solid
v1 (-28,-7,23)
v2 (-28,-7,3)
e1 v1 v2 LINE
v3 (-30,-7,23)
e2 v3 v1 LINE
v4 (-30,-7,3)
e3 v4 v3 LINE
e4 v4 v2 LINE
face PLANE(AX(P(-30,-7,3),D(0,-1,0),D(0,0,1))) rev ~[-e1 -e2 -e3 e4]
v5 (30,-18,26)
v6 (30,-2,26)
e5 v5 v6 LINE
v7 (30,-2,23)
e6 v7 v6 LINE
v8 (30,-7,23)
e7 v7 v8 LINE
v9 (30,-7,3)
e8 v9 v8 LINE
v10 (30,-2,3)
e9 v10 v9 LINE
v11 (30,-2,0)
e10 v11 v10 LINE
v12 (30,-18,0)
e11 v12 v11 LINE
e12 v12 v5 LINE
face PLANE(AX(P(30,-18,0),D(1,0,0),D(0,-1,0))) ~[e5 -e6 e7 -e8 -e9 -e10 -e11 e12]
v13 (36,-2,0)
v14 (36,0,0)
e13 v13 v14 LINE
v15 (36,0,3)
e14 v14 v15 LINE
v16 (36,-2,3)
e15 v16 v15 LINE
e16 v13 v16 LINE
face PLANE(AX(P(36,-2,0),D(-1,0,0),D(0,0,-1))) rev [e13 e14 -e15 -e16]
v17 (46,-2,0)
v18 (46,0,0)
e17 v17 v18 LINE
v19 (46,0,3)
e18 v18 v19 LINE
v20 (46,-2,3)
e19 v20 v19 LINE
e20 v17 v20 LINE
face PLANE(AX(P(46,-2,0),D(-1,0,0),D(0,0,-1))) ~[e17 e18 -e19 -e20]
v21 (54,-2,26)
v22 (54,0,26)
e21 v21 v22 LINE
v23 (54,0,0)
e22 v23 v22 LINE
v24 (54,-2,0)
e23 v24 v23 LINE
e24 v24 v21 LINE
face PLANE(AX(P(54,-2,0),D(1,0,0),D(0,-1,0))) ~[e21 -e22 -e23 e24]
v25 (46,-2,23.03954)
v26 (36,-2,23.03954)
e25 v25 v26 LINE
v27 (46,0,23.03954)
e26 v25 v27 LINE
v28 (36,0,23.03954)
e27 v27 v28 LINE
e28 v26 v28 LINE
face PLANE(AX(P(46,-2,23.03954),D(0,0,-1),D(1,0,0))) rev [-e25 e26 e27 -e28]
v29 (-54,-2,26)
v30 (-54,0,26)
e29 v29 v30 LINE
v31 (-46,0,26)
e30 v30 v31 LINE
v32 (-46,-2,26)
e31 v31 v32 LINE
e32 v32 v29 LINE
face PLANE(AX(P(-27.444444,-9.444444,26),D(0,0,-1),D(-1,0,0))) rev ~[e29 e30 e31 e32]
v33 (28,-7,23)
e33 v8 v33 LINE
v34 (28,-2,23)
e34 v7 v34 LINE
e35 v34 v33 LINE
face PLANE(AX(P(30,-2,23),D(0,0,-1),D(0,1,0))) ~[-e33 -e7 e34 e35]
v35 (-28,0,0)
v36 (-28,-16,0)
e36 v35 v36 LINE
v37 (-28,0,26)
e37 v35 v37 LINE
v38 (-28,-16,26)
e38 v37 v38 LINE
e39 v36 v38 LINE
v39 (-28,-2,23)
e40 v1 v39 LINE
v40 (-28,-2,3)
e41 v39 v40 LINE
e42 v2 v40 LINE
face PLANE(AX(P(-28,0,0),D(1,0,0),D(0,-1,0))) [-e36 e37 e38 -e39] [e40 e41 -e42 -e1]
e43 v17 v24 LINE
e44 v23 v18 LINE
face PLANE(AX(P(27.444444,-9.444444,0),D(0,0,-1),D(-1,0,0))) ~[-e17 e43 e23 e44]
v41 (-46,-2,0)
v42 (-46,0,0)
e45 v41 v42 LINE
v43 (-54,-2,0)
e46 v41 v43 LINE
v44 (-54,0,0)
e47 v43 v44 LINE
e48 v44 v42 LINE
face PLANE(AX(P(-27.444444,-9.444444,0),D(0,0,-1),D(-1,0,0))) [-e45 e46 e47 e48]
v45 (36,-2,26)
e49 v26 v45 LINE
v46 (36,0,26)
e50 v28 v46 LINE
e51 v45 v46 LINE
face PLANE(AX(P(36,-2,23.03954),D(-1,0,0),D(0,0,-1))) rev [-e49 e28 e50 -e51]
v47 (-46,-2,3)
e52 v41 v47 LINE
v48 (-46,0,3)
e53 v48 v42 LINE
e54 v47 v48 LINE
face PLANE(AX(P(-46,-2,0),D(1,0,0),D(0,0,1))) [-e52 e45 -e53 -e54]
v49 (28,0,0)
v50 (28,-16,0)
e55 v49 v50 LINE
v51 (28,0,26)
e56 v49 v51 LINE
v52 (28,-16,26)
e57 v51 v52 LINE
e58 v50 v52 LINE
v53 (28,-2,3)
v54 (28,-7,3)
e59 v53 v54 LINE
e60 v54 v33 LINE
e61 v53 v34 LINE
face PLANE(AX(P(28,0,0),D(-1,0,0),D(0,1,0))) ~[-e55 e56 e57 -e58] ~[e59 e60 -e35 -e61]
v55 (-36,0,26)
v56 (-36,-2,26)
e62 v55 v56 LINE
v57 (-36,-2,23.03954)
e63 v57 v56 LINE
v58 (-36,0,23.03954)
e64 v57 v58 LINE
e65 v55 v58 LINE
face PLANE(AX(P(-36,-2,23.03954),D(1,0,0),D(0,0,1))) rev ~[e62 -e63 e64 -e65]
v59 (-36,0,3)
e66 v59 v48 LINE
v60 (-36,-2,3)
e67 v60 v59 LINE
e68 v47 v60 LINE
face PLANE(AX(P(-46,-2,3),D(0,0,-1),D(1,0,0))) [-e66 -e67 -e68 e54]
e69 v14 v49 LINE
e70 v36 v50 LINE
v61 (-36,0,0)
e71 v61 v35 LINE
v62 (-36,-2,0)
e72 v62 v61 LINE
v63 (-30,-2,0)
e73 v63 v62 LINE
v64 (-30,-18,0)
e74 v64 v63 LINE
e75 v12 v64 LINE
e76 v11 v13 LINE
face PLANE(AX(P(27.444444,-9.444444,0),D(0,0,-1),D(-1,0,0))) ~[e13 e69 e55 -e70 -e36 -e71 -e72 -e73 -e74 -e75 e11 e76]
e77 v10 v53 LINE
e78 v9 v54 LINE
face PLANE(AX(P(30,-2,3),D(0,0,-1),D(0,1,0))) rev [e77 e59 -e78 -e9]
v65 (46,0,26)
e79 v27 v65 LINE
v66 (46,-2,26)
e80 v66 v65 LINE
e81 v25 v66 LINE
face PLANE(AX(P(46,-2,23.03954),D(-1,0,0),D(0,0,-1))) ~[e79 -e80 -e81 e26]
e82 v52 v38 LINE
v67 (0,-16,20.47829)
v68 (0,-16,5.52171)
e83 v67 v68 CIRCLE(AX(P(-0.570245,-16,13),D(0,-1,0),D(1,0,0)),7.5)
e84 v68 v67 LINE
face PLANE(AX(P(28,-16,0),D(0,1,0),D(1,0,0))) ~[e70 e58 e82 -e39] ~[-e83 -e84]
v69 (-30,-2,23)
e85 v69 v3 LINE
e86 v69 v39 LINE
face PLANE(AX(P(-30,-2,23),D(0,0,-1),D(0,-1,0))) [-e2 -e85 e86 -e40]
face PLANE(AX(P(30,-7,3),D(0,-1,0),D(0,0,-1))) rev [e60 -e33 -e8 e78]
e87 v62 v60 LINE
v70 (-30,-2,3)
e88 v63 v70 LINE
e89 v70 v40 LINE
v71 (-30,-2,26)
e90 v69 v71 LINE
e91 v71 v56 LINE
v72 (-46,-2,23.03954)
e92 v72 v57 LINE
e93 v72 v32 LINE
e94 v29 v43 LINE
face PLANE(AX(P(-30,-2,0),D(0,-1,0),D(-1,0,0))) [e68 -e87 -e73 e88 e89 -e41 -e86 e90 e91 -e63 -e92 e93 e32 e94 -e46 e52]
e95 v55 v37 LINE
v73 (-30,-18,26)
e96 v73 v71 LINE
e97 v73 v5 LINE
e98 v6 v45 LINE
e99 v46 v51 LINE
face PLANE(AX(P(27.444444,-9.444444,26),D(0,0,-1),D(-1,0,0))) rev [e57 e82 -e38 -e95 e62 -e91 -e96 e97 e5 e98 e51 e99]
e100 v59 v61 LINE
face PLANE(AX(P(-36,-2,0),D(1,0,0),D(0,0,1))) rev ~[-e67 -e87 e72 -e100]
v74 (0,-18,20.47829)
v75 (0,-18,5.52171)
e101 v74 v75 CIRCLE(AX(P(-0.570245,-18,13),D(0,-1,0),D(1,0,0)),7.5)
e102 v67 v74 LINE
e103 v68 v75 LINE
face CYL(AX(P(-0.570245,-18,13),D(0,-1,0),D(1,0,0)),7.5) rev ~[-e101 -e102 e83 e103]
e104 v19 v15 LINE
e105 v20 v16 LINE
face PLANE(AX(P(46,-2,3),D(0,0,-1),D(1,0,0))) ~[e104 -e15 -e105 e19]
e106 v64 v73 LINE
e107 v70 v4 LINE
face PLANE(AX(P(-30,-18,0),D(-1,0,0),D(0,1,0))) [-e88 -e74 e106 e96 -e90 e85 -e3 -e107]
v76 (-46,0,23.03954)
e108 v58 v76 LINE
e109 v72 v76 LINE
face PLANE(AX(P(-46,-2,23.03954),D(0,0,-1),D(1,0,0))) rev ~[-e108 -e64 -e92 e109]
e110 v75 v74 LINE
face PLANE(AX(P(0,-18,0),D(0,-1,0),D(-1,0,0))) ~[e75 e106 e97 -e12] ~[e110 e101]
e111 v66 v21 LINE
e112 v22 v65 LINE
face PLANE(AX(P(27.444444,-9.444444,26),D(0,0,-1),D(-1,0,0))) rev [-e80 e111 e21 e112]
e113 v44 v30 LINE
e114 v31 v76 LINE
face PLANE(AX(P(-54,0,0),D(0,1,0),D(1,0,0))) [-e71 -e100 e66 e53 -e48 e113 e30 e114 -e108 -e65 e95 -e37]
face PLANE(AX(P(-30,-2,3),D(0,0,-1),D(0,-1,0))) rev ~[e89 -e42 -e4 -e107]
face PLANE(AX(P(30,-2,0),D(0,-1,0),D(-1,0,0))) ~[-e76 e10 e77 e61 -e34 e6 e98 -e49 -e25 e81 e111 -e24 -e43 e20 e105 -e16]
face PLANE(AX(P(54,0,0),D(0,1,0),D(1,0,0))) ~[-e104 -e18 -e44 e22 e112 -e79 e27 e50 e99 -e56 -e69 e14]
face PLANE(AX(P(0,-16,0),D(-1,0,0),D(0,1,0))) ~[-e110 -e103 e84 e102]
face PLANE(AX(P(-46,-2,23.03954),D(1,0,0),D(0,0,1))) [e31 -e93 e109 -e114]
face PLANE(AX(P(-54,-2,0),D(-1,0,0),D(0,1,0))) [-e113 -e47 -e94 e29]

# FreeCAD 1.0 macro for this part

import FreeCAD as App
import Part
import Sketcher
Q = App.Units.Quantity

doc = App.newDocument("Part")
body = doc.addObject("PartDesign::Body", "Body")

# Sketch on XY plane
sketch1 = body.newObject("Sketcher::SketchObject", "Sketch")
sketch1.AttachmentSupport = (doc.getObject("XY_Plane"), [""])
sketch1.MapMode = "FlatFace"
sketch1.addGeometry([
    Part.LineSegment(App.Vector(-28, 0, 0), App.Vector(-54, 0, 0)),  # 0
    Part.LineSegment(App.Vector(-54, 0, 0), App.Vector(-54, -2, 0)),  # 1
    Part.LineSegment(App.Vector(-54, -2, 0), App.Vector(-30, -2, 0)),  # 2
    Part.LineSegment(App.Vector(-30, -2, 0), App.Vector(-30, -18, 0)),  # 3
    Part.LineSegment(App.Vector(-30, -18, 0), App.Vector(0, -18, 0)),  # 4
    Part.LineSegment(App.Vector(0, -18, 0), App.Vector(0, -16, 0)),  # 5
    Part.LineSegment(App.Vector(0, -16, 0), App.Vector(-28, -16, 0)),  # 6
    Part.LineSegment(App.Vector(-28, -16, 0), App.Vector(-28, 0, 0)),  # 7
], False)
sketch1.addConstraint([
    Sketcher.Constraint("Coincident", 0, 2, 1, 1),
    Sketcher.Constraint("Coincident", 1, 2, 2, 1),
    Sketcher.Constraint("Coincident", 2, 2, 3, 1),
    Sketcher.Constraint("Coincident", 3, 2, 4, 1),
    Sketcher.Constraint("Coincident", 4, 2, 5, 1),
    Sketcher.Constraint("Coincident", 5, 2, 6, 1),
    Sketcher.Constraint("Coincident", 6, 2, 7, 1),
    Sketcher.Constraint("Coincident", 7, 2, 0, 1),
    Sketcher.Constraint("Horizontal", 0),
    Sketcher.Constraint("Vertical", 1),
    Sketcher.Constraint("Horizontal", 2),
    Sketcher.Constraint("Vertical", 3),
    Sketcher.Constraint("Horizontal", 4),
    Sketcher.Constraint("Vertical", 5),
    Sketcher.Constraint("Horizontal", 6),
    Sketcher.Constraint("Vertical", 7),
    Sketcher.Constraint("PointOnObject", 0, 2, -1),
    Sketcher.Constraint("PointOnObject", 4, 2, -2),
    Sketcher.Constraint("Equal", 1, 5),
    Sketcher.Constraint("DistanceX", 0, 2, 0, 1, Q("26 mm")),
    Sketcher.Constraint("DistanceX", 2, 1, 2, 2, Q("24 mm")),
    Sketcher.Constraint("DistanceX", 4, 1, 4, 2, Q("30 mm")),
    Sketcher.Constraint("DistanceY", 1, 2, 1, 1, Q("2 mm")),
    Sketcher.Constraint("DistanceY", 3, 2, 3, 1, Q("16 mm")),
])
pad1 = body.newObject("PartDesign::Pad", "Pad")
pad1.Profile = sketch1
pad1.Length = 26

# Sketch on YZ plane
sketch2 = body.newObject("Sketcher::SketchObject", "Sketch001")
sketch2.AttachmentSupport = (doc.getObject("YZ_Plane"), [""])
sketch2.MapMode = "FlatFace"
sketch2.AttachmentOffset = App.Placement(App.Vector(0, 0, -30), App.Rotation())
sketch2.addGeometry([
    Part.LineSegment(App.Vector(-2, 23, 0), App.Vector(-2, 3, 0)),
    Part.LineSegment(App.Vector(-2, 3, 0), App.Vector(-7, 3, 0)),
    Part.LineSegment(App.Vector(-7, 3, 0), App.Vector(-7, 23, 0)),
    Part.LineSegment(App.Vector(-7, 23, 0), App.Vector(-2, 23, 0)),
], False)
sketch2.addConstraint([
    Sketcher.Constraint("Coincident", 0, 2, 1, 1),
    Sketcher.Constraint("Coincident", 1, 2, 2, 1),
    Sketcher.Constraint("Coincident", 2, 2, 3, 1),
    Sketcher.Constraint("Coincident", 3, 2, 0, 1),
    Sketcher.Constraint("Vertical", 0),
    Sketcher.Constraint("Horizontal", 1),
    Sketcher.Constraint("Vertical", 2),
    Sketcher.Constraint("Horizontal", 3),
    Sketcher.Constraint("DistanceX", 1, 2, 1, 1, Q("5 mm")),
    Sketcher.Constraint("DistanceY", 0, 2, 0, 1, Q("20 mm")),
    Sketcher.Constraint("DistanceX", 0, 2, -1, 1, Q("2 mm")),
    Sketcher.Constraint("DistanceY", -1, 1, 0, 2, Q("3 mm")),
])
pocket1 = body.newObject("PartDesign::Pocket", "Pocket")
pocket1.Profile = sketch2
pocket1.Type = "ThroughAll"
pocket1.Reversed = True

# Sketch on XZ plane
sketch3 = body.newObject("Sketcher::SketchObject", "Sketch002")
sketch3.AttachmentSupport = (doc.getObject("XZ_Plane"), [""])
sketch3.MapMode = "FlatFace"
sketch3.AttachmentOffset = App.Placement(App.Vector(0, 0, 2), App.Rotation())
sketch3.addGeometry([
    Part.LineSegment(App.Vector(-46, 26, 0), App.Vector(-46, 23, 0)),  # 0
    Part.LineSegment(App.Vector(-46, 23, 0), App.Vector(-36, 23, 0)),  # 1
    Part.LineSegment(App.Vector(-36, 23, 0), App.Vector(-36, 26, 0)),  # 2
    Part.LineSegment(App.Vector(-36, 26, 0), App.Vector(-46, 26, 0)),  # 3
    Part.LineSegment(App.Vector(-46, 3, 0), App.Vector(-46, 0, 0)),  # 4
    Part.LineSegment(App.Vector(-46, 0, 0), App.Vector(-36, 0, 0)),  # 5
    Part.LineSegment(App.Vector(-36, 0, 0), App.Vector(-36, 3, 0)),  # 6
    Part.LineSegment(App.Vector(-36, 3, 0), App.Vector(-46, 3, 0)),  # 7
], False)
sketch3.addConstraint([
    Sketcher.Constraint("Coincident", 0, 2, 1, 1),
    Sketcher.Constraint("Coincident", 1, 2, 2, 1),
    Sketcher.Constraint("Coincident", 2, 2, 3, 1),
    Sketcher.Constraint("Coincident", 3, 2, 0, 1),
    Sketcher.Constraint("Coincident", 4, 2, 5, 1),
    Sketcher.Constraint("Coincident", 5, 2, 6, 1),
    Sketcher.Constraint("Coincident", 6, 2, 7, 1),
    Sketcher.Constraint("Coincident", 7, 2, 4, 1),
    Sketcher.Constraint("Vertical", 0),
    Sketcher.Constraint("Horizontal", 1),
    Sketcher.Constraint("Vertical", 2),
    Sketcher.Constraint("Horizontal", 3),
    Sketcher.Constraint("Vertical", 4),
    Sketcher.Constraint("Horizontal", 5),
    Sketcher.Constraint("Vertical", 6),
    Sketcher.Constraint("Horizontal", 7),
    Sketcher.Constraint("PointOnObject", 4, 2, -1),
    Sketcher.Constraint("Vertical", 3, 2, 4, 2),
    Sketcher.Constraint("Vertical", 2, 2, 5, 2),
    Sketcher.Constraint("Equal", 2, 4),
    Sketcher.Constraint("DistanceX", 1, 1, 1, 2, Q("10 mm")),
    Sketcher.Constraint("DistanceY", 0, 2, 0, 1, Q("3 mm")),
    Sketcher.Constraint("DistanceX", 0, 2, -1, 1, Q("46 mm")),
    Sketcher.Constraint("DistanceY", -1, 1, 0, 2, Q("23.03954 mm")),
])
pocket2 = body.newObject("PartDesign::Pocket", "Pocket001")
pocket2.Profile = sketch3
pocket2.Length = 5

# Sketch on XZ plane
sketch4 = body.newObject("Sketcher::SketchObject", "Sketch003")
sketch4.AttachmentSupport = (doc.getObject("XZ_Plane"), [""])
sketch4.MapMode = "FlatFace"
sketch4.AttachmentOffset = App.Placement(App.Vector(0, 0, 18), App.Rotation())
sketch4.addGeometry(Part.Circle(App.Vector(-1, 13, 0), App.Vector(0, 0, 1), 8), False)
sketch4.addConstraint([
    Sketcher.Constraint("Diameter", 0, Q("15 mm")),
    Sketcher.Constraint("DistanceY", -1, 1, 0, 3, Q("13 mm")),
    Sketcher.Constraint("DistanceX", 0, 3, -1, 1, Q("0.570245 mm")),
])
pocket3 = body.newObject("PartDesign::Pocket", "Pocket002")
pocket3.Profile = sketch4
pocket3.Length = 5
doc.recompute()

mirrored = body.newObject("PartDesign::Mirrored", "Mirrored")
mirrored.Originals = [pad1]
mirrored.MirrorPlane = (doc.getObject("YZ_Plane"), [""])
body.Tip = mirrored
doc.recompute()

mirrored2 = body.newObject("PartDesign::Mirrored", "Mirrored001")
mirrored2.Originals = [pocket1]
mirrored2.MirrorPlane = (doc.getObject("YZ_Plane"), [""])
body.Tip = mirrored2
doc.recompute()

mirrored3 = body.newObject("PartDesign::Mirrored", "Mirrored002")
mirrored3.Originals = [pocket2]
mirrored3.MirrorPlane = (doc.getObject("YZ_Plane"), [""])
body.Tip = mirrored3

doc.recompute()
